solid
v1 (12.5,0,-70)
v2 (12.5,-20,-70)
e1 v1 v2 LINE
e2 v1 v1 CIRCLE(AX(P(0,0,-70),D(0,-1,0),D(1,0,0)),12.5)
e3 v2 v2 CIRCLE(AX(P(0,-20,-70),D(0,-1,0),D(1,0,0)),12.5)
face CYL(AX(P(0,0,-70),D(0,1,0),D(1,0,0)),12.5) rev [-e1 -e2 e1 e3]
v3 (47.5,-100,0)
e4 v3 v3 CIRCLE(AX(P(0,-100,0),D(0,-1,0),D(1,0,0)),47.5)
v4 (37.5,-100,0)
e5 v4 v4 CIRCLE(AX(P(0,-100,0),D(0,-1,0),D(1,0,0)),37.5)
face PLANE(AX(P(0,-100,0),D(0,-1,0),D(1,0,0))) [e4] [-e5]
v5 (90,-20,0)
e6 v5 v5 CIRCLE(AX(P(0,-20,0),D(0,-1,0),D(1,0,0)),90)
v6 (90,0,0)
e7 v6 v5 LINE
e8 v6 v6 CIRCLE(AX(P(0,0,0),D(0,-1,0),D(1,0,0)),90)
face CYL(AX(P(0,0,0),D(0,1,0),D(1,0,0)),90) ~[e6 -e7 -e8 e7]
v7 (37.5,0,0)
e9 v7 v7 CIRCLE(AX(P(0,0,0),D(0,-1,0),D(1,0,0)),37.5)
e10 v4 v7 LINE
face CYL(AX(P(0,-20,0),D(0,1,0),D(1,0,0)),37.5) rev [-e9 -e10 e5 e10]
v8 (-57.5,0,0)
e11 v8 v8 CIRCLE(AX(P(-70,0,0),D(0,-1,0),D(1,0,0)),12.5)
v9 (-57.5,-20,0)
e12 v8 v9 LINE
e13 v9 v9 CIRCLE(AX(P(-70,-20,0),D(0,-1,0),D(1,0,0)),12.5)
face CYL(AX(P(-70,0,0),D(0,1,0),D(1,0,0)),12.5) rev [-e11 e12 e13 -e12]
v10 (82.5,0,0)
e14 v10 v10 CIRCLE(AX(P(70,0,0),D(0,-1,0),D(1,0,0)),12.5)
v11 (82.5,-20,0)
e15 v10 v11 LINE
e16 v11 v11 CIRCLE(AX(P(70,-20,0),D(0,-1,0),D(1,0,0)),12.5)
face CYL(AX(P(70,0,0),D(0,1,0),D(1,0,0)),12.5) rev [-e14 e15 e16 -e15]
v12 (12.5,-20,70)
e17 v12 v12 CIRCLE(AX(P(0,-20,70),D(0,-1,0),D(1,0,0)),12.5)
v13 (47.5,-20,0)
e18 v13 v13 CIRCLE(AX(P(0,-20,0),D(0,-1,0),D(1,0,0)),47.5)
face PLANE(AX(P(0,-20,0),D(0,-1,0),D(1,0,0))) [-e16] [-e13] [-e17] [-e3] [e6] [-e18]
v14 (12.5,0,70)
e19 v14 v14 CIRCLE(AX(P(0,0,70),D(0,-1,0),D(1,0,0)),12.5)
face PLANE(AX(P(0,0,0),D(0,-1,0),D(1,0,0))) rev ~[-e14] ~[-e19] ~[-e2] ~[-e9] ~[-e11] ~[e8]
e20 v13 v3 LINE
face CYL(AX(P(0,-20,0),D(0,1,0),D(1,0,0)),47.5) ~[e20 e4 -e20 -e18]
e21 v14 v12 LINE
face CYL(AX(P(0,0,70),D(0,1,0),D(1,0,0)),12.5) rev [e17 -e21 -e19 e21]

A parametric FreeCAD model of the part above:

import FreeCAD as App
import Part
import Sketcher

doc = App.newDocument("Part")
body = doc.addObject("PartDesign::Body", "Body")

# Sketch on XZ plane
sketch1 = doc.addObject("Sketcher::SketchObject", "Sketch")
body.addObject(sketch1)
sketch1.AttachmentSupport = (doc.XZ_Plane, [""])
sketch1.MapMode = "FlatFace"
sketch1.addGeometry([
    Part.Circle(App.Vector(0, 0, 0), App.Vector(0, 0, 1), 90),  # 0
    Part.Circle(App.Vector(0, -70, 0), App.Vector(0, 0, 1), 12.5),  # 1
    Part.Circle(App.Vector(-70, 0, 0), App.Vector(0, 0, 1), 12.5),  # 2
    Part.Circle(App.Vector(0, 0, 0), App.Vector(0, 0, 1), 37.5),  # 3
    Part.Circle(App.Vector(70, 0, 0), App.Vector(0, 0, 1), 12.5),  # 4
    Part.Circle(App.Vector(0, 70, 0), App.Vector(0, 0, 1), 12.5),  # 5
], False)
sketch1.addConstraint([
    Sketcher.Constraint("Coincident", 0, 3, -1, 1),
    Sketcher.Constraint("Coincident", 3, 3, -1, 1),
    Sketcher.Constraint("Equal", 1, 2),
    Sketcher.Constraint("Equal", 2, 4),
    Sketcher.Constraint("Equal", 4, 5),
    Sketcher.Constraint("Symmetric", 2, 3, 4, 3, -1, 1),
    Sketcher.Constraint("Symmetric", 1, 3, 5, 3, -1, 1),
    Sketcher.Constraint("PointOnObject", 1, 3, -2),
    Sketcher.Constraint("PointOnObject", 2, 3, -1),
    Sketcher.Constraint("Diameter", 0, 180.0),
    Sketcher.Constraint("Diameter", 1, 25.0),
    Sketcher.Constraint("Diameter", 3, 75.0),
    Sketcher.Constraint("DistanceY", 1, 3, -1, 1, 70.0),
    Sketcher.Constraint("DistanceX", 2, 3, -1, 1, 70.0),
])
pad1 = doc.addObject("PartDesign::Pad", "Pad")
body.addObject(pad1)
pad1.Profile = sketch1
pad1.Length = 20

# Sketch on XZ plane
sketch2 = doc.addObject("Sketcher::SketchObject", "Sketch001")
body.addObject(sketch2)
sketch2.AttachmentSupport = (doc.XZ_Plane, [""])
sketch2.MapMode = "FlatFace"
sketch2.AttachmentOffset = App.Placement(App.Vector(0, 0, 20), App.Rotation())
sketch2.addGeometry([
    Part.Circle(App.Vector(0, 0, 0), App.Vector(0, 0, 1), 47.5),
    Part.Circle(App.Vector(0, 0, 0), App.Vector(0, 0, 1), 37.5),
], False)
sketch2.addConstraint([
    Sketcher.Constraint("Coincident", 0, 3, -1, 1),
    Sketcher.Constraint("Coincident", 1, 3, -1, 1),
    Sketcher.Constraint("Diameter", 0, 95.0),
    Sketcher.Constraint("Diameter", 1, 75.0),
])
pad2 = doc.addObject("PartDesign::Pad", "Pad001")
body.addObject(pad2)
pad2.Profile = sketch2
pad2.Length = 80

doc.recompute()
